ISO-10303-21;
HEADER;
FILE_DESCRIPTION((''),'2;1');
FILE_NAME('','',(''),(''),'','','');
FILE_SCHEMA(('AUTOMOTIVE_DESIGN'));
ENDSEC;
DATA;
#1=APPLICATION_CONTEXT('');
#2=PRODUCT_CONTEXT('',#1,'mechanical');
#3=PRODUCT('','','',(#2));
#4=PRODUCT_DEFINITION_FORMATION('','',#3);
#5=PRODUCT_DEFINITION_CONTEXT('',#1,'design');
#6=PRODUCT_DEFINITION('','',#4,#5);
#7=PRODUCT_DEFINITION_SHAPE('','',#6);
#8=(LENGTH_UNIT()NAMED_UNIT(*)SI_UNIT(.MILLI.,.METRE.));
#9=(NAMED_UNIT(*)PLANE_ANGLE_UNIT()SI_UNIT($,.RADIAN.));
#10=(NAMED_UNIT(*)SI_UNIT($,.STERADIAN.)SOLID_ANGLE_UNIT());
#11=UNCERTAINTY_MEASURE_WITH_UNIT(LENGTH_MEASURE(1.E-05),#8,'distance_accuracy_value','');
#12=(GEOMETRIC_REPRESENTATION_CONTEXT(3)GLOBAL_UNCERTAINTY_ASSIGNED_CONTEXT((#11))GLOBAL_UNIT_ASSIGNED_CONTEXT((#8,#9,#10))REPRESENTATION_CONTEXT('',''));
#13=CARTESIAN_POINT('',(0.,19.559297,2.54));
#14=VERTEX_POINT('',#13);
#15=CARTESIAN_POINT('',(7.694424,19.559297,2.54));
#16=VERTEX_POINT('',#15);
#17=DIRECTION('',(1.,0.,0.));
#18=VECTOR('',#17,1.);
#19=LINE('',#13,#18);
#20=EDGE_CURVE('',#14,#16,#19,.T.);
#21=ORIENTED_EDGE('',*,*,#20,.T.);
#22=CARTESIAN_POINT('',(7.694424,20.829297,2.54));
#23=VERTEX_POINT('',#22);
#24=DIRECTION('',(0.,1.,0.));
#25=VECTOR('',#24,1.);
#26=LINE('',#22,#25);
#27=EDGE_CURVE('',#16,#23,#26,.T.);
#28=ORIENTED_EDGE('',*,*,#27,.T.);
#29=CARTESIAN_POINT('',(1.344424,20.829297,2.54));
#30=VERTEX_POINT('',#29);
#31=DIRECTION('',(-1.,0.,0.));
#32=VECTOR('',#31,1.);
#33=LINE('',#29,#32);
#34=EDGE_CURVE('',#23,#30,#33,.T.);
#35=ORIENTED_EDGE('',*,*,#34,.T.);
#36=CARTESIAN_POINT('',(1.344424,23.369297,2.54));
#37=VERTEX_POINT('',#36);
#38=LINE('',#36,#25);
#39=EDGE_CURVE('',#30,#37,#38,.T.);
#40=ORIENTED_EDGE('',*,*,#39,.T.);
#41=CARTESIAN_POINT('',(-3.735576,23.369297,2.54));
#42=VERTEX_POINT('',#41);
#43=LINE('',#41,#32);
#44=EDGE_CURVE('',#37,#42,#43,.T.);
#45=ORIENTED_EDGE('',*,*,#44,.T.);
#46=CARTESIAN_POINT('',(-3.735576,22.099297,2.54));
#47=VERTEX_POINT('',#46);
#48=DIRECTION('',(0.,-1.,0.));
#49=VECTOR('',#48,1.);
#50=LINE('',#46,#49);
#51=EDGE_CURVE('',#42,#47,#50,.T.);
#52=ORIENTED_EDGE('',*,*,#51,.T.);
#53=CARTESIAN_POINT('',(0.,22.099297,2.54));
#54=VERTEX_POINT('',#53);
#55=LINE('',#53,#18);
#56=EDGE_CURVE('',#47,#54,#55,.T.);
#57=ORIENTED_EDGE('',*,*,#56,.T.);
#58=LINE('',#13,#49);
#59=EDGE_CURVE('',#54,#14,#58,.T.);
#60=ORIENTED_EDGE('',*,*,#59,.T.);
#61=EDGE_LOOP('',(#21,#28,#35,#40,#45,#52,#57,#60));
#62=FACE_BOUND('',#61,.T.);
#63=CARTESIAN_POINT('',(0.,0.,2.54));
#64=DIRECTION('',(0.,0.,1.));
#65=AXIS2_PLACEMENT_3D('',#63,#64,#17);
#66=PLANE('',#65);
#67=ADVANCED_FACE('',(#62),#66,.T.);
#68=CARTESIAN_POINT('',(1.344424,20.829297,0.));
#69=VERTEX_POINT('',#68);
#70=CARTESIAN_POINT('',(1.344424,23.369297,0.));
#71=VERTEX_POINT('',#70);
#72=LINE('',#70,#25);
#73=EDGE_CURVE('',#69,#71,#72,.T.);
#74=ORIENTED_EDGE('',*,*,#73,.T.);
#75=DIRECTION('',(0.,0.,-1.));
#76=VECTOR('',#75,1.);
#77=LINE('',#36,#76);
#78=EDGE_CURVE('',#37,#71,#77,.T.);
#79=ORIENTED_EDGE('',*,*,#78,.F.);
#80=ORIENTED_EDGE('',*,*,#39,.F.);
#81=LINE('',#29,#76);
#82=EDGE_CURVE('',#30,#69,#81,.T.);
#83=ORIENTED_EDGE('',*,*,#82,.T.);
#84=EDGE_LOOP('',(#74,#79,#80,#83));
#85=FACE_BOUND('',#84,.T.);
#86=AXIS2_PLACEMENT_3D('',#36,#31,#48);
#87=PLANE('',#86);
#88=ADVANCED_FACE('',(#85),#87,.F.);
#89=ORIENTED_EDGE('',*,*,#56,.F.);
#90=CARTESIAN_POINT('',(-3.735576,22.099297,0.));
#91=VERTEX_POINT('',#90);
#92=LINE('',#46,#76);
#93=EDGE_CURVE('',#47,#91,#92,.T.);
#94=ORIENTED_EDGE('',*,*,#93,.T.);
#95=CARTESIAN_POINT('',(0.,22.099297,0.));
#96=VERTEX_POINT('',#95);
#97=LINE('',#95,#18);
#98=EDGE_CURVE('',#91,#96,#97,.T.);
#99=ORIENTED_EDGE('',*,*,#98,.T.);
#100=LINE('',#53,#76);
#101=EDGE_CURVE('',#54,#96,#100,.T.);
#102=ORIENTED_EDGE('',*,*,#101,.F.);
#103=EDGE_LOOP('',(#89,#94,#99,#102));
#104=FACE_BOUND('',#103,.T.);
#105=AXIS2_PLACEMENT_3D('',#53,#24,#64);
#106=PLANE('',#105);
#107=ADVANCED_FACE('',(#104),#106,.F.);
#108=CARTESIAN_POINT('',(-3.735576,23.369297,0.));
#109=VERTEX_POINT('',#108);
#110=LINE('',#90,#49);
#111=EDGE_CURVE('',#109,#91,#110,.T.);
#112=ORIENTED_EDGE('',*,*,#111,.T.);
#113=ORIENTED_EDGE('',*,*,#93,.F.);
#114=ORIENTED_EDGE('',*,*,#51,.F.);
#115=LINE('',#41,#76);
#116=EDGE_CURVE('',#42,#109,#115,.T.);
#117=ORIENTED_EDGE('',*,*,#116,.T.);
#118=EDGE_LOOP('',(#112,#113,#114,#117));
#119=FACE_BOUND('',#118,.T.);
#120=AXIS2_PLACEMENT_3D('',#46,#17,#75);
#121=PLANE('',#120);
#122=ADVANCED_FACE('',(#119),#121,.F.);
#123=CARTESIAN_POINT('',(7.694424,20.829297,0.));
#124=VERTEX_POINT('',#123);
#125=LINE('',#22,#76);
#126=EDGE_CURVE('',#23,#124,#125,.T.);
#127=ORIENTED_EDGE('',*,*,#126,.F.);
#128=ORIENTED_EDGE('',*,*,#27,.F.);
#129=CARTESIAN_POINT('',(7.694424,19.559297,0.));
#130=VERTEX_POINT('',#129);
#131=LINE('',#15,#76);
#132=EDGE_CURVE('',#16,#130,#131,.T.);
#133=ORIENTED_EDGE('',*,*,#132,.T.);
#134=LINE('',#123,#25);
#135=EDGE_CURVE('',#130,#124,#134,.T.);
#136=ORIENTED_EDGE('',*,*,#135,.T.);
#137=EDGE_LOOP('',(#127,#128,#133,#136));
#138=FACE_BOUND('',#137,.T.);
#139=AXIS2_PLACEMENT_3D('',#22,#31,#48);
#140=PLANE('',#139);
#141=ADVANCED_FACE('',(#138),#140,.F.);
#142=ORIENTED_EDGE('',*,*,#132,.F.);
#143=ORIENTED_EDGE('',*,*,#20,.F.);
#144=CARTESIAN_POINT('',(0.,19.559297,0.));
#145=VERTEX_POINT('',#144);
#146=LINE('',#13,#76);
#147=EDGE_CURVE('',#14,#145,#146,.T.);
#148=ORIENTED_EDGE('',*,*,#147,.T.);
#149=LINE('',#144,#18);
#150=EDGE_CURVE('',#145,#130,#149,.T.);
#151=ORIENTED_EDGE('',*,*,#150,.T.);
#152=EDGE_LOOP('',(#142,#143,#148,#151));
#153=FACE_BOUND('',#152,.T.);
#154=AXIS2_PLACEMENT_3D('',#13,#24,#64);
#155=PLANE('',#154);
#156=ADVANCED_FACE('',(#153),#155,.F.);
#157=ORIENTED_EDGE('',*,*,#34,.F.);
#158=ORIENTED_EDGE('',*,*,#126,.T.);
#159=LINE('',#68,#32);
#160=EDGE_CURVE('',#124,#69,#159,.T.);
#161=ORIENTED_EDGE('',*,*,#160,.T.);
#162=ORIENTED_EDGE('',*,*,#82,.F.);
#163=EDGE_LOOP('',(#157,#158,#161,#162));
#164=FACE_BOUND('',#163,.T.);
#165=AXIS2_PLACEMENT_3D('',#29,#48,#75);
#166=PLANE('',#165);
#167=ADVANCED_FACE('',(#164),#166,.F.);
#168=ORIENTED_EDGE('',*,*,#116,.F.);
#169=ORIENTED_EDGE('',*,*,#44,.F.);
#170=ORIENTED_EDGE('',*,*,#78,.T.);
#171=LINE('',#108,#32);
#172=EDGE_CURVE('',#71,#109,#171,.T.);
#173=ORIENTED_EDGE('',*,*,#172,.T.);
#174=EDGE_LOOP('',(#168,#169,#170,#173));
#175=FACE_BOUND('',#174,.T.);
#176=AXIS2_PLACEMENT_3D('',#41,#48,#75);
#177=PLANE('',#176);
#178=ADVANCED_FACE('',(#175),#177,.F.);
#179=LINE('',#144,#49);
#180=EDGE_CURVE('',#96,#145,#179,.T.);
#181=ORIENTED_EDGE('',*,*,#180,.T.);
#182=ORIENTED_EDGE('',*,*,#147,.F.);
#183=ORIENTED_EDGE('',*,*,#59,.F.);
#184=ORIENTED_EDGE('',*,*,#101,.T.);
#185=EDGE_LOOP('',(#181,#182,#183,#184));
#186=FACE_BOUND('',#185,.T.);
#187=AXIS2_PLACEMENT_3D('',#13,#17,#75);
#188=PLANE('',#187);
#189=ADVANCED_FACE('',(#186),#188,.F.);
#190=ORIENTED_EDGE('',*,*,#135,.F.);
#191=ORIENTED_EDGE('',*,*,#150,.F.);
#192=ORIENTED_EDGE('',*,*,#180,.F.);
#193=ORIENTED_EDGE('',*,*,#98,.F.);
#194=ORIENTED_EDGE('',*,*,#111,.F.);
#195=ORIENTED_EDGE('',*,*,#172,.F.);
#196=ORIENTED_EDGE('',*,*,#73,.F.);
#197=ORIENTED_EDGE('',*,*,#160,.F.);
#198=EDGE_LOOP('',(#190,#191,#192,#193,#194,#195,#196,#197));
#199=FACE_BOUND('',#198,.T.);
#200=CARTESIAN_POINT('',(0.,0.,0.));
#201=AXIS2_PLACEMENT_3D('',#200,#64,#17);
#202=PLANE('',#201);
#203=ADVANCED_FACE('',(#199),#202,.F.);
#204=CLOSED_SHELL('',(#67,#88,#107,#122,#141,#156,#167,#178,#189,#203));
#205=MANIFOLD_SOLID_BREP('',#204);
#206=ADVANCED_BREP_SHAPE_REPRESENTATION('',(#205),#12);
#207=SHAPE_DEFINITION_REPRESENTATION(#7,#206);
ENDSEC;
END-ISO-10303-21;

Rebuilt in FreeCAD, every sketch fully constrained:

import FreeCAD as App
import Part
import Sketcher
Q = App.Units.Quantity


def add_polygon(sketch, points):
    """Adds a closed chain of lines whose ends are joined by coincident constraints."""
    first, n = sketch.GeometryCount, len(points)
    for a, b in zip(points, points[1:] + points[:1]):
        sketch.addGeometry(Part.LineSegment(App.Vector(*a, 0), App.Vector(*b, 0)), False)
    for i in range(n):
        sketch.addConstraint(Sketcher.Constraint("Coincident", first + i, 2, first + (i + 1) % n, 1))

doc = App.newDocument("Part")
body = doc.addObject("PartDesign::Body", "Body")

# Sketch on XY plane
sketch1 = body.newObject("Sketcher::SketchObject", "Sketch")
sketch1.AttachmentSupport = (doc.getObject("XY_Plane"), [""])
sketch1.MapMode = "FlatFace"
add_polygon(sketch1, [(0, 19.6), (7.7, 19.6), (7.7, 20.8), (1.3, 20.8), (1.3, 23.4), (-3.7, 23.4), (-3.7, 22.1), (0, 22.1)])  # lines 0-7
sketch1.addConstraint([
    Sketcher.Constraint("Horizontal", 0),
    Sketcher.Constraint("Vertical", 1),
    Sketcher.Constraint("Horizontal", 2),
    Sketcher.Constraint("Vertical", 3),
    Sketcher.Constraint("Horizontal", 4),
    Sketcher.Constraint("Vertical", 5),
    Sketcher.Constraint("Horizontal", 6),
    Sketcher.Constraint("Vertical", 7),
    Sketcher.Constraint("PointOnObject", 6, 2, -2),
    Sketcher.Constraint("Equal", 1, 5),
    Sketcher.Constraint("DistanceX", 4, 2, 4, 1, Q("0.2 in")),
    Sketcher.Constraint("DistanceY", 3, 1, 3, 2, Q("0.1 in")),
    Sketcher.Constraint("DistanceX", 2, 2, 2, 1, Q("0.25 in")),
    Sketcher.Constraint("DistanceY", 1, 1, 1, 2, Q("0.05 in")),
    Sketcher.Constraint("DistanceX", 0, 1, 0, 2, Q("7.694424 mm")),
    Sketcher.Constraint("DistanceY", -1, 1, 0, 2, Q("19.559297 mm")),
])
pad1 = body.newObject("PartDesign::Pad", "Pad")
pad1.Profile = sketch1
pad1.Length = Q("0.1 in")

doc.recompute()
